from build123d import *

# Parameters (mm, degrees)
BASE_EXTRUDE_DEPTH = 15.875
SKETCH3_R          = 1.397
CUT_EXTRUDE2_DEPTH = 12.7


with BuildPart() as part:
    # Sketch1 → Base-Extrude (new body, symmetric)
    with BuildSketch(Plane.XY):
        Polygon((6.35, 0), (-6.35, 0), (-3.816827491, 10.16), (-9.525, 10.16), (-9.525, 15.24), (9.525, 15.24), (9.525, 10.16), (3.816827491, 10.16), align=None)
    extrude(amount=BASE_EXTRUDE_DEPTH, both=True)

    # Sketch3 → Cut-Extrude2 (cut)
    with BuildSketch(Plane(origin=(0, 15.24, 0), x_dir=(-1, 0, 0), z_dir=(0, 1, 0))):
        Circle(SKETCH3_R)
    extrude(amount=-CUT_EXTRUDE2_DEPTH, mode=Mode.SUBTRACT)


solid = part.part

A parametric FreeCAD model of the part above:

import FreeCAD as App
import Part
import Sketcher
from FreeCAD import Vector
Q = App.Units.Quantity

doc = App.newDocument("Part")
params = doc.addObject("Spreadsheet::Sheet", "Params")
for row, (alias, value) in enumerate([
    ("sketch1_width", "0.5 in"),
    ("sketch1_height", "0.2 in"),
    ("sketch1_width2", "0.75 in"),
    ("pad1_length", "1.25 in"),
    ("sketch2_diameter", "0.11 in"),
    ("pocket1_length", "0.5 in"),
], start=1):
    params.set(f"A{row}", alias)
    params.set(f"B{row}", "=" + value)
    params.setAlias(f"B{row}", alias)

body = doc.addObject("PartDesign::Body", "Body")

# Sketch on XY plane
sketch1 = body.newObject("Sketcher::SketchObject", "Sketch")
sketch1.AttachmentSupport = (doc.getObject("XY_Plane"), [""])
sketch1.MapMode = "FlatFace"
sketch1.addGeometry([
    Part.LineSegment(Vector(-6, 0, 0), Vector(6, 0, 0)),  # 0
    Part.LineSegment(Vector(6, 0, 0), Vector(4, 10, 0)),  # 1
    Part.LineSegment(Vector(4, 10, 0), Vector(10, 10, 0)),  # 2
    Part.LineSegment(Vector(10, 10, 0), Vector(10, 15, 0)),  # 3
    Part.LineSegment(Vector(10, 15, 0), Vector(-10, 15, 0)),  # 4
    Part.LineSegment(Vector(-10, 15, 0), Vector(-10, 10, 0)),  # 5
    Part.LineSegment(Vector(-10, 10, 0), Vector(-4, 10, 0)),  # 6
    Part.LineSegment(Vector(-4, 10, 0), Vector(-6, 0, 0)),  # 7
], False)
sketch1.addConstraint([
    Sketcher.Constraint("Coincident", 0, 2, 1, 1),
    Sketcher.Constraint("Coincident", 1, 2, 2, 1),
    Sketcher.Constraint("Coincident", 2, 2, 3, 1),
    Sketcher.Constraint("Coincident", 3, 2, 4, 1),
    Sketcher.Constraint("Coincident", 4, 2, 5, 1),
    Sketcher.Constraint("Coincident", 5, 2, 6, 1),
    Sketcher.Constraint("Coincident", 6, 2, 7, 1),
    Sketcher.Constraint("Coincident", 7, 2, 0, 1),
    Sketcher.Constraint("Horizontal", 0),
    Sketcher.Constraint("Horizontal", 2),
    Sketcher.Constraint("Vertical", 3),
    Sketcher.Constraint("Horizontal", 4),
    Sketcher.Constraint("Vertical", 5),
    Sketcher.Constraint("Horizontal", 6),
    Sketcher.Constraint("Symmetric", 0, 2, 7, 2, -1, 1),
    Sketcher.Constraint("Symmetric", 2, 2, 5, 2, -2),
    Sketcher.Constraint("Equal", 2, 6),
    Sketcher.Constraint("DistanceX", 0, 1, 0, 2, Q("0.5 in")),
    Sketcher.Constraint("DistanceY", 3, 1, 3, 2, Q("0.2 in")),
    Sketcher.Constraint("Angle", 1, Q("104 deg")),
    Sketcher.Constraint("DistanceX", 4, 2, 4, 1, Q("0.75 in")),
    Sketcher.Constraint("DistanceY", -1, 1, 1, 2, Q("0.4 in")),
])
sketch1.setExpression("Constraints[17]", "Params.sketch1_width")
sketch1.setExpression("Constraints[18]", "Params.sketch1_height")
sketch1.setExpression("Constraints[20]", "Params.sketch1_width2")
pad1 = body.newObject("PartDesign::Pad", "Pad")
pad1.Profile = sketch1
pad1.setExpression("Length", "Params.pad1_length")
pad1.Midplane = True

# Sketch on XZ plane
sketch2 = body.newObject("Sketcher::SketchObject", "Sketch001")
sketch2.AttachmentSupport = (doc.getObject("XZ_Plane"), [""])
sketch2.MapMode = "FlatFace"
sketch2.AttachmentOffset = App.Placement(Vector(0, 0, -0.6 * 25.4), App.Rotation())
sketch2.addGeometry(Part.Circle(Vector(0, 0, 0), Vector(0, 0, 1), 1.4), False)
sketch2.addConstraint([
    Sketcher.Constraint("Coincident", 0, 3, -1, 1),
    Sketcher.Constraint("Diameter", 0, Q("0.11 in")),
])
sketch2.setExpression("Constraints[1]", "Params.sketch2_diameter")
pocket1 = body.newObject("PartDesign::Pocket", "Pocket")
pocket1.Profile = sketch2
pocket1.setExpression("Length", "Params.pocket1_length")
pocket1.Reversed = True

doc.recompute()
